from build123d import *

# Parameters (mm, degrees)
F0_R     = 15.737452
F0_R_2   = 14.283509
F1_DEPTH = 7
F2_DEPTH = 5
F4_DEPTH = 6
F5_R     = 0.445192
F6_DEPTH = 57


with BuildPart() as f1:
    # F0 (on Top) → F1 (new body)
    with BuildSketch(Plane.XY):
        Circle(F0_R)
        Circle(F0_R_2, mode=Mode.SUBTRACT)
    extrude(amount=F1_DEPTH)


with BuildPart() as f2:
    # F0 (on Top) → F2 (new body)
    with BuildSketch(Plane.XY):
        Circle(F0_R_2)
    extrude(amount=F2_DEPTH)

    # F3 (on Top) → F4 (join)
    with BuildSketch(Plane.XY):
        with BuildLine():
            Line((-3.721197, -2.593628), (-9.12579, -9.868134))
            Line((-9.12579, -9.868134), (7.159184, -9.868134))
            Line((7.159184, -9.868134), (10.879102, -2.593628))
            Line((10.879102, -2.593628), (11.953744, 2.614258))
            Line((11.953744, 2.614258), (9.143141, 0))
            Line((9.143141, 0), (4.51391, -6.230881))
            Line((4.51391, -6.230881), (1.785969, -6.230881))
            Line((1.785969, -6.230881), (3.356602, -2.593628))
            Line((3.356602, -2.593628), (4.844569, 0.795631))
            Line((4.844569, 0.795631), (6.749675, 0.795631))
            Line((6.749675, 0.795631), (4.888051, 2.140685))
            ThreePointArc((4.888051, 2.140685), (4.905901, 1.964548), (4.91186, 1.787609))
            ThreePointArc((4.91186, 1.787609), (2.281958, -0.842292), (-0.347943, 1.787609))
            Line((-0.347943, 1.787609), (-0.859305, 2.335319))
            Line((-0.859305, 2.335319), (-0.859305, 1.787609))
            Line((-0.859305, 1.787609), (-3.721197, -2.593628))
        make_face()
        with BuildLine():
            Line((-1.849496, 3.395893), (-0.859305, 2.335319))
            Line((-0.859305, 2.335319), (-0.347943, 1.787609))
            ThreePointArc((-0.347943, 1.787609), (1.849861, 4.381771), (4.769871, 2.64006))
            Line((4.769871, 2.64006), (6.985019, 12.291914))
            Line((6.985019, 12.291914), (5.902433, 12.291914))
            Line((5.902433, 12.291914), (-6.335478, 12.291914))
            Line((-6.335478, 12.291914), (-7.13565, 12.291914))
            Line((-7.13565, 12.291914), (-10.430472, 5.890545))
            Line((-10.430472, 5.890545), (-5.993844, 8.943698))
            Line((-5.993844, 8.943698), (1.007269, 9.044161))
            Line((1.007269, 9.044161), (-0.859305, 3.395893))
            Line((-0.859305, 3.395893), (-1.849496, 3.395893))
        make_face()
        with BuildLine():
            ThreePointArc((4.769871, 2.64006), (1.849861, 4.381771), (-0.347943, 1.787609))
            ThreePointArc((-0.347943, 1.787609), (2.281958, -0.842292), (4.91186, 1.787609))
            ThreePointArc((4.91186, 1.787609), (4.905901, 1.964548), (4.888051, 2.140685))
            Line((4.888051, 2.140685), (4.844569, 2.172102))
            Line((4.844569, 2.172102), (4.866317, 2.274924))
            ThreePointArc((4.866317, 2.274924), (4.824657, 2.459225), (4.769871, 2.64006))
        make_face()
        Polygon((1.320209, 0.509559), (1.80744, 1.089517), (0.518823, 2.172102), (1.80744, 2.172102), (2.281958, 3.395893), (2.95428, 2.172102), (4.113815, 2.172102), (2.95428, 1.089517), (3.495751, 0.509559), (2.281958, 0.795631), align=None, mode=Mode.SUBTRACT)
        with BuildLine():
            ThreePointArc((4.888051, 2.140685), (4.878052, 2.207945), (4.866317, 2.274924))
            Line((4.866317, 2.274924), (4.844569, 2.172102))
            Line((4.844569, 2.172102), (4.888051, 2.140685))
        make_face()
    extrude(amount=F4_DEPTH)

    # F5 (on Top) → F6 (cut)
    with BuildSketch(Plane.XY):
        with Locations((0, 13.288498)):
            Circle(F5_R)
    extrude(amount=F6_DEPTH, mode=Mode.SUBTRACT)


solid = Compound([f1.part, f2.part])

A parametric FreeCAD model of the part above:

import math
import FreeCAD as App
import Part
import Sketcher
Q = App.Units.Quantity


def add_polygon(sketch, points):
    """Adds a closed chain of lines whose ends are joined by coincident constraints."""
    first, n = sketch.GeometryCount, len(points)
    for a, b in zip(points, points[1:] + points[:1]):
        sketch.addGeometry(Part.LineSegment(App.Vector(*a, 0), App.Vector(*b, 0)), False)
    for i in range(n):
        sketch.addConstraint(Sketcher.Constraint("Coincident", first + i, 2, first + (i + 1) % n, 1))

doc = App.newDocument("Part")
body = doc.addObject("PartDesign::Body", "Body")

# Sketch on XY plane
sketch1 = doc.addObject("Sketcher::SketchObject", "Sketch")
body.addObject(sketch1)
sketch1.AttachmentSupport = (doc.XY_Plane, [""])
sketch1.MapMode = "FlatFace"
sketch1.addGeometry([
    Part.Circle(App.Vector(0, 0, 0), App.Vector(0, 0, 1), 15.737452),
    Part.Circle(App.Vector(0, 0, 0), App.Vector(0, 0, 1), 14.283509),
], False)
sketch1.addConstraint([
    Sketcher.Constraint("Coincident", 0, 3, -1, 1),
    Sketcher.Constraint("Coincident", 1, 3, -1, 1),
    Sketcher.Constraint("Diameter", 1, Q("28.567018 mm")),
    Sketcher.Constraint("Diameter", 0, Q("31.474904 mm")),
])
pad1 = doc.addObject("PartDesign::Pad", "Pad")
body.addObject(pad1)
pad1.Profile = sketch1
pad1.Length = 7
body2 = doc.addObject("PartDesign::Body", "Body001")

# Sketch on XY plane
sketch2 = doc.addObject("Sketcher::SketchObject", "Sketch001")
body2.addObject(sketch2)
sketch2.AttachmentSupport = (doc.getObject("XY_Plane001"), [""])
sketch2.MapMode = "FlatFace"
sketch2.addGeometry(Part.Circle(App.Vector(0, 0, 0), App.Vector(0, 0, 1), 14.283509), False)
sketch2.addConstraint([
    Sketcher.Constraint("Coincident", 0, 3, -1, 1),
    Sketcher.Constraint("Diameter", 0, Q("28.567018 mm")),
])
pad2 = doc.addObject("PartDesign::Pad", "Pad001")
body2.addObject(pad2)
pad2.Profile = sketch2
pad2.Length = 5

# Sketch on XY plane
sketch3 = doc.addObject("Sketcher::SketchObject", "Sketch002")
body2.addObject(sketch3)
sketch3.AttachmentSupport = (doc.getObject("XY_Plane001"), [""])
sketch3.MapMode = "FlatFace"
sketch3.addGeometry(Part.LineSegment(App.Vector(-3.721197, -2.593628, 0), App.Vector(-9.12579, -9.868134, 0)), False)  # 0
sketch3.addGeometry(Part.LineSegment(App.Vector(-9.12579, -9.868134, 0), App.Vector(7.159184, -9.868134, 0)), False)  # 1
sketch3.addGeometry(Part.LineSegment(App.Vector(7.159184, -9.868134, 0), App.Vector(10.879102, -2.593628, 0)), False)  # 2
sketch3.addGeometry(Part.LineSegment(App.Vector(10.879102, -2.593628, 0), App.Vector(11.953744, 2.614258, 0)), False)  # 3
sketch3.addGeometry(Part.LineSegment(App.Vector(11.953744, 2.614258, 0), App.Vector(9.143141, 0, 0)), False)  # 4
sketch3.addGeometry(Part.LineSegment(App.Vector(9.143141, 0, 0), App.Vector(4.51391, -6.230881, 0)), False)  # 5
sketch3.addGeometry(Part.LineSegment(App.Vector(4.51391, -6.230881, 0), App.Vector(1.785969, -6.230881, 0)), False)  # 6
sketch3.addGeometry(Part.LineSegment(App.Vector(1.785969, -6.230881, 0), App.Vector(3.356602, -2.593628, 0)), False)  # 7
sketch3.addGeometry(Part.LineSegment(App.Vector(3.356602, -2.593628, 0), App.Vector(4.844569, 0.795631, 0)), False)  # 8
sketch3.addGeometry(Part.LineSegment(App.Vector(4.844569, 0.795631, 0), App.Vector(6.749675, 0.795631, 0)), False)  # 9
sketch3.addGeometry(Part.LineSegment(App.Vector(6.749675, 0.795631, 0), App.Vector(4.888051, 2.140685, 0)), False)  # 10
sketch3.addGeometry(Part.ArcOfCircle(Part.Circle(App.Vector(2.28254, 1.787718, 0), App.Vector(0, 0, 1), 2.62931), math.radians(7.714859), math.radians(10.678508)), False)  # 11
sketch3.addGeometry(Part.ArcOfCircle(Part.Circle(App.Vector(2.282008, 1.787617, 0), App.Vector(0, 0, 1), 2.629852), math.radians(10.678516), math.radians(18.913537)), False)  # 12
sketch3.addGeometry(Part.LineSegment(App.Vector(4.769871, 2.64006, 0), App.Vector(6.985019, 12.291914, 0)), False)  # 13
sketch3.addGeometry(Part.LineSegment(App.Vector(6.985019, 12.291914, 0), App.Vector(-7.13565, 12.291914, 0)), False)  # 14
sketch3.addGeometry(Part.LineSegment(App.Vector(-7.13565, 12.291914, 0), App.Vector(-10.430472, 5.890545, 0)), False)  # 15
sketch3.addGeometry(Part.LineSegment(App.Vector(-10.430472, 5.890545, 0), App.Vector(-5.993844, 8.943698, 0)), False)  # 16
sketch3.addGeometry(Part.LineSegment(App.Vector(-5.993844, 8.943698, 0), App.Vector(1.007269, 9.044161, 0)), False)  # 17
sketch3.addGeometry(Part.LineSegment(App.Vector(1.007269, 9.044161, 0), App.Vector(-0.859305, 3.395893, 0)), False)  # 18
sketch3.addGeometry(Part.LineSegment(App.Vector(-0.859305, 3.395893, 0), App.Vector(-1.849496, 3.395893, 0)), False)  # 19
sketch3.addGeometry(Part.LineSegment(App.Vector(-1.849496, 3.395893, 0), App.Vector(-0.859305, 2.335319, 0)), False)  # 20
sketch3.addGeometry(Part.LineSegment(App.Vector(-0.859305, 2.335319, 0), App.Vector(-0.859305, 1.787609, 0)), False)  # 21
sketch3.addGeometry(Part.LineSegment(App.Vector(-0.859305, 1.787609, 0), App.Vector(-3.721197, -2.593628, 0)), False)  # 22
add_polygon(sketch3, [(2.281958, 0.795631), (1.320209, 0.509559), (1.80744, 1.089517), (0.518823, 2.172102), (1.80744, 2.172102), (2.281958, 3.395893), (2.95428, 2.172102), (4.113815, 2.172102), (2.95428, 1.089517), (3.495751, 0.509559)])  # lines 23-32
sketch3.addConstraint([
    Sketcher.Constraint("Coincident", 0, 2, 1, 1),
    Sketcher.Constraint("Coincident", 1, 2, 2, 1),
    Sketcher.Constraint("Coincident", 2, 2, 3, 1),
    Sketcher.Constraint("Coincident", 3, 2, 4, 1),
    Sketcher.Constraint("Coincident", 4, 2, 5, 1),
    Sketcher.Constraint("Coincident", 5, 2, 6, 1),
    Sketcher.Constraint("Coincident", 6, 2, 7, 1),
    Sketcher.Constraint("Coincident", 7, 2, 8, 1),
    Sketcher.Constraint("Coincident", 8, 2, 9, 1),
    Sketcher.Constraint("Coincident", 9, 2, 10, 1),
    Sketcher.Constraint("Coincident", 10, 2, 11, 1),
    Sketcher.Constraint("Coincident", 11, 2, 12, 1),
    Sketcher.Constraint("Coincident", 12, 2, 13, 1),
    Sketcher.Constraint("Coincident", 13, 2, 14, 1),
    Sketcher.Constraint("Coincident", 14, 2, 15, 1),
    Sketcher.Constraint("Coincident", 15, 2, 16, 1),
    Sketcher.Constraint("Coincident", 16, 2, 17, 1),
    Sketcher.Constraint("Coincident", 17, 2, 18, 1),
    Sketcher.Constraint("Coincident", 18, 2, 19, 1),
    Sketcher.Constraint("Coincident", 19, 2, 20, 1),
    Sketcher.Constraint("Coincident", 20, 2, 21, 1),
    Sketcher.Constraint("Coincident", 21, 2, 22, 1),
    Sketcher.Constraint("Coincident", 22, 2, 0, 1),
    Sketcher.Constraint("Horizontal", 1),
    Sketcher.Constraint("Horizontal", 6),
    Sketcher.Constraint("Horizontal", 9),
    Sketcher.Constraint("Horizontal", 14),
    Sketcher.Constraint("Horizontal", 19),
    Sketcher.Constraint("Vertical", 21),
    Sketcher.Constraint("Horizontal", 26),
    Sketcher.Constraint("Horizontal", 29),
    Sketcher.Constraint("PointOnObject", 4, 2, -1),
    Sketcher.Constraint("Radius", 11, Q("2.62931 mm")),
    Sketcher.Constraint("Radius", 12, Q("2.629852 mm")),
    Sketcher.Constraint("Distance", 18, Q("5.9487 mm")),
    Sketcher.Constraint("DistanceX", 6, 2, 6, 1, Q("2.727941 mm")),
    Sketcher.Constraint("DistanceX", 14, 2, 14, 1, Q("14.120669 mm")),
    Sketcher.Constraint("DistanceX", 19, 2, 19, 1, Q("0.990191 mm")),
    Sketcher.Constraint("DistanceY", 21, 2, 21, 1, Q("0.54771 mm")),
    Sketcher.Constraint("DistanceY", 12, 3, 11, 3, Q("0.000101 mm")),
    Sketcher.Constraint("DistanceX", 11, 3, 4, 2, Q("6.860601 mm")),
    Sketcher.Constraint("DistanceY", 5, 2, 11, 3, Q("8.018599 mm")),
    Sketcher.Constraint("DistanceX", 11, 2, 13, 2, Q("2.118702 mm")),
    Sketcher.Constraint("DistanceY", 12, 2, 17, 2, Q("6.404101 mm")),
    Sketcher.Constraint("DistanceY", 12, 3, 20, 2, Q("0.547702 mm")),
    Sketcher.Constraint("DistanceX", 22, 2, 19, 2, Q("1.871701 mm")),
    Sketcher.Constraint("DistanceX", 23, 2, 12, 3, Q("0.961799 mm")),
    Sketcher.Constraint("DistanceY", 24, 2, 12, 3, Q("0.6981 mm")),
    Sketcher.Constraint("DistanceX", 24, 2, 11, 3, Q("0.4751 mm")),
    Sketcher.Constraint("DistanceX", 26, 2, 11, 3, Q("0.4751 mm")),
    Sketcher.Constraint("DistanceY", 30, 2, 11, 3, Q("0.698201 mm")),
    Sketcher.Constraint("Distance", 2, Q("8.170448 mm")),
    Sketcher.Constraint("Distance", 7, Q("3.961881 mm")),
    Sketcher.Constraint("Distance", 15, Q("7.19954 mm")),
    Sketcher.Constraint("Distance", 22, Q("5.233131 mm")),
    Sketcher.Constraint("Distance", 24, Q("0.75746 mm")),
    Sketcher.Constraint("Distance", 25, Q("1.68301 mm")),
    Sketcher.Constraint("Distance", 28, Q("1.39631 mm")),
    Sketcher.Constraint("Distance", 30, Q("1.586352 mm")),
    Sketcher.Constraint("Distance", 32, Q("1.247049 mm")),
    Sketcher.Constraint("DistanceX", 1, 1, 1, 2, Q("16.284974 mm")),
    Sketcher.Constraint("DistanceX", 9, 1, 9, 2, Q("1.905106 mm")),
    Sketcher.Constraint("DistanceX", 26, 1, 26, 2, Q("1.288617 mm")),
    Sketcher.Constraint("DistanceX", 29, 1, 29, 2, Q("1.159535 mm")),
    Sketcher.Constraint("DistanceX", -1, 1, 11, 3, Q("2.28254 mm")),
    Sketcher.Constraint("DistanceY", -1, 1, 11, 3, Q("1.787718 mm")),
    Sketcher.Constraint("DistanceX", 0, 2, -1, 1, Q("9.12579 mm")),
    Sketcher.Constraint("DistanceY", -1, 1, 3, 2, Q("2.614258 mm")),
    Sketcher.Constraint("DistanceX", -1, 1, 5, 2, Q("4.51391 mm")),
    Sketcher.Constraint("DistanceX", -1, 1, 8, 2, Q("4.844569 mm")),
    Sketcher.Constraint("DistanceY", -1, 1, 8, 2, Q("0.795631 mm")),
    Sketcher.Constraint("DistanceX", -1, 1, 10, 2, Q("4.888051 mm")),
    Sketcher.Constraint("DistanceX", -1, 1, 12, 2, Q("4.769871 mm")),
    Sketcher.Constraint("DistanceX", -1, 1, 13, 2, Q("6.985019 mm")),
    Sketcher.Constraint("DistanceX", -1, 1, 17, 2, Q("1.007269 mm")),
    Sketcher.Constraint("DistanceX", -1, 1, 28, 2, Q("2.95428 mm")),
    Sketcher.Constraint("DistanceX", -1, 1, 30, 2, Q("2.95428 mm")),
    Sketcher.Constraint("DistanceX", -1, 1, 31, 2, Q("3.495751 mm")),
    Sketcher.Constraint("DistanceY", -1, 1, 31, 2, Q("0.509559 mm")),
    Sketcher.Constraint("DistanceY", -1, 1, 32, 2, Q("0.795631 mm")),
    Sketcher.Constraint("DistanceY", 0, 2, 12, 3, Q("11.655751 mm")),
    Sketcher.Constraint("DistanceX", 11, 3, 2, 2, Q("8.596562 mm")),
    Sketcher.Constraint("DistanceX", 1, 2, 3, 2, Q("4.79456 mm")),
    Sketcher.Constraint("DistanceX", 11, 3, 7, 2, Q("1.074062 mm")),
    Sketcher.Constraint("DistanceY", 11, 2, 13, 2, Q("10.01699 mm")),
    Sketcher.Constraint("DistanceX", 15, 2, 14, 2, Q("3.294822 mm")),
    Sketcher.Constraint("DistanceX", 16, 2, 12, 3, Q("8.275852 mm")),
    Sketcher.Constraint("DistanceY", 12, 3, 16, 2, Q("7.156081 mm")),
    Sketcher.Constraint("DistanceY", 11, 2, 18, 2, Q("1.120969 mm")),
    Sketcher.Constraint("DistanceX", 19, 2, 20, 2, Q("0.990191 mm")),
    Sketcher.Constraint("DistanceY", 26, 2, 27, 2, Q("1.223791 mm")),
])
pad3 = doc.addObject("PartDesign::Pad", "Pad002")
body2.addObject(pad3)
pad3.Profile = sketch3
pad3.Length = 6

# Sketch on XY plane
sketch4 = doc.addObject("Sketcher::SketchObject", "Sketch003")
body2.addObject(sketch4)
sketch4.AttachmentSupport = (doc.getObject("XY_Plane001"), [""])
sketch4.MapMode = "FlatFace"
sketch4.addGeometry(Part.Circle(App.Vector(0, 13.288498, 0), App.Vector(0, 0, 1), 0.445192), False)
sketch4.addConstraint([
    Sketcher.Constraint("PointOnObject", 0, 3, -2),
    Sketcher.Constraint("Diameter", 0, Q("0.890384 mm")),
    Sketcher.Constraint("DistanceY", -1, 1, 0, 3, Q("13.288498 mm")),
])
pocket1 = doc.addObject("PartDesign::Pocket", "Pocket")
body2.addObject(pocket1)
pocket1.Profile = sketch4
pocket1.Length = 57
pocket1.Reversed = True

doc.recompute()
